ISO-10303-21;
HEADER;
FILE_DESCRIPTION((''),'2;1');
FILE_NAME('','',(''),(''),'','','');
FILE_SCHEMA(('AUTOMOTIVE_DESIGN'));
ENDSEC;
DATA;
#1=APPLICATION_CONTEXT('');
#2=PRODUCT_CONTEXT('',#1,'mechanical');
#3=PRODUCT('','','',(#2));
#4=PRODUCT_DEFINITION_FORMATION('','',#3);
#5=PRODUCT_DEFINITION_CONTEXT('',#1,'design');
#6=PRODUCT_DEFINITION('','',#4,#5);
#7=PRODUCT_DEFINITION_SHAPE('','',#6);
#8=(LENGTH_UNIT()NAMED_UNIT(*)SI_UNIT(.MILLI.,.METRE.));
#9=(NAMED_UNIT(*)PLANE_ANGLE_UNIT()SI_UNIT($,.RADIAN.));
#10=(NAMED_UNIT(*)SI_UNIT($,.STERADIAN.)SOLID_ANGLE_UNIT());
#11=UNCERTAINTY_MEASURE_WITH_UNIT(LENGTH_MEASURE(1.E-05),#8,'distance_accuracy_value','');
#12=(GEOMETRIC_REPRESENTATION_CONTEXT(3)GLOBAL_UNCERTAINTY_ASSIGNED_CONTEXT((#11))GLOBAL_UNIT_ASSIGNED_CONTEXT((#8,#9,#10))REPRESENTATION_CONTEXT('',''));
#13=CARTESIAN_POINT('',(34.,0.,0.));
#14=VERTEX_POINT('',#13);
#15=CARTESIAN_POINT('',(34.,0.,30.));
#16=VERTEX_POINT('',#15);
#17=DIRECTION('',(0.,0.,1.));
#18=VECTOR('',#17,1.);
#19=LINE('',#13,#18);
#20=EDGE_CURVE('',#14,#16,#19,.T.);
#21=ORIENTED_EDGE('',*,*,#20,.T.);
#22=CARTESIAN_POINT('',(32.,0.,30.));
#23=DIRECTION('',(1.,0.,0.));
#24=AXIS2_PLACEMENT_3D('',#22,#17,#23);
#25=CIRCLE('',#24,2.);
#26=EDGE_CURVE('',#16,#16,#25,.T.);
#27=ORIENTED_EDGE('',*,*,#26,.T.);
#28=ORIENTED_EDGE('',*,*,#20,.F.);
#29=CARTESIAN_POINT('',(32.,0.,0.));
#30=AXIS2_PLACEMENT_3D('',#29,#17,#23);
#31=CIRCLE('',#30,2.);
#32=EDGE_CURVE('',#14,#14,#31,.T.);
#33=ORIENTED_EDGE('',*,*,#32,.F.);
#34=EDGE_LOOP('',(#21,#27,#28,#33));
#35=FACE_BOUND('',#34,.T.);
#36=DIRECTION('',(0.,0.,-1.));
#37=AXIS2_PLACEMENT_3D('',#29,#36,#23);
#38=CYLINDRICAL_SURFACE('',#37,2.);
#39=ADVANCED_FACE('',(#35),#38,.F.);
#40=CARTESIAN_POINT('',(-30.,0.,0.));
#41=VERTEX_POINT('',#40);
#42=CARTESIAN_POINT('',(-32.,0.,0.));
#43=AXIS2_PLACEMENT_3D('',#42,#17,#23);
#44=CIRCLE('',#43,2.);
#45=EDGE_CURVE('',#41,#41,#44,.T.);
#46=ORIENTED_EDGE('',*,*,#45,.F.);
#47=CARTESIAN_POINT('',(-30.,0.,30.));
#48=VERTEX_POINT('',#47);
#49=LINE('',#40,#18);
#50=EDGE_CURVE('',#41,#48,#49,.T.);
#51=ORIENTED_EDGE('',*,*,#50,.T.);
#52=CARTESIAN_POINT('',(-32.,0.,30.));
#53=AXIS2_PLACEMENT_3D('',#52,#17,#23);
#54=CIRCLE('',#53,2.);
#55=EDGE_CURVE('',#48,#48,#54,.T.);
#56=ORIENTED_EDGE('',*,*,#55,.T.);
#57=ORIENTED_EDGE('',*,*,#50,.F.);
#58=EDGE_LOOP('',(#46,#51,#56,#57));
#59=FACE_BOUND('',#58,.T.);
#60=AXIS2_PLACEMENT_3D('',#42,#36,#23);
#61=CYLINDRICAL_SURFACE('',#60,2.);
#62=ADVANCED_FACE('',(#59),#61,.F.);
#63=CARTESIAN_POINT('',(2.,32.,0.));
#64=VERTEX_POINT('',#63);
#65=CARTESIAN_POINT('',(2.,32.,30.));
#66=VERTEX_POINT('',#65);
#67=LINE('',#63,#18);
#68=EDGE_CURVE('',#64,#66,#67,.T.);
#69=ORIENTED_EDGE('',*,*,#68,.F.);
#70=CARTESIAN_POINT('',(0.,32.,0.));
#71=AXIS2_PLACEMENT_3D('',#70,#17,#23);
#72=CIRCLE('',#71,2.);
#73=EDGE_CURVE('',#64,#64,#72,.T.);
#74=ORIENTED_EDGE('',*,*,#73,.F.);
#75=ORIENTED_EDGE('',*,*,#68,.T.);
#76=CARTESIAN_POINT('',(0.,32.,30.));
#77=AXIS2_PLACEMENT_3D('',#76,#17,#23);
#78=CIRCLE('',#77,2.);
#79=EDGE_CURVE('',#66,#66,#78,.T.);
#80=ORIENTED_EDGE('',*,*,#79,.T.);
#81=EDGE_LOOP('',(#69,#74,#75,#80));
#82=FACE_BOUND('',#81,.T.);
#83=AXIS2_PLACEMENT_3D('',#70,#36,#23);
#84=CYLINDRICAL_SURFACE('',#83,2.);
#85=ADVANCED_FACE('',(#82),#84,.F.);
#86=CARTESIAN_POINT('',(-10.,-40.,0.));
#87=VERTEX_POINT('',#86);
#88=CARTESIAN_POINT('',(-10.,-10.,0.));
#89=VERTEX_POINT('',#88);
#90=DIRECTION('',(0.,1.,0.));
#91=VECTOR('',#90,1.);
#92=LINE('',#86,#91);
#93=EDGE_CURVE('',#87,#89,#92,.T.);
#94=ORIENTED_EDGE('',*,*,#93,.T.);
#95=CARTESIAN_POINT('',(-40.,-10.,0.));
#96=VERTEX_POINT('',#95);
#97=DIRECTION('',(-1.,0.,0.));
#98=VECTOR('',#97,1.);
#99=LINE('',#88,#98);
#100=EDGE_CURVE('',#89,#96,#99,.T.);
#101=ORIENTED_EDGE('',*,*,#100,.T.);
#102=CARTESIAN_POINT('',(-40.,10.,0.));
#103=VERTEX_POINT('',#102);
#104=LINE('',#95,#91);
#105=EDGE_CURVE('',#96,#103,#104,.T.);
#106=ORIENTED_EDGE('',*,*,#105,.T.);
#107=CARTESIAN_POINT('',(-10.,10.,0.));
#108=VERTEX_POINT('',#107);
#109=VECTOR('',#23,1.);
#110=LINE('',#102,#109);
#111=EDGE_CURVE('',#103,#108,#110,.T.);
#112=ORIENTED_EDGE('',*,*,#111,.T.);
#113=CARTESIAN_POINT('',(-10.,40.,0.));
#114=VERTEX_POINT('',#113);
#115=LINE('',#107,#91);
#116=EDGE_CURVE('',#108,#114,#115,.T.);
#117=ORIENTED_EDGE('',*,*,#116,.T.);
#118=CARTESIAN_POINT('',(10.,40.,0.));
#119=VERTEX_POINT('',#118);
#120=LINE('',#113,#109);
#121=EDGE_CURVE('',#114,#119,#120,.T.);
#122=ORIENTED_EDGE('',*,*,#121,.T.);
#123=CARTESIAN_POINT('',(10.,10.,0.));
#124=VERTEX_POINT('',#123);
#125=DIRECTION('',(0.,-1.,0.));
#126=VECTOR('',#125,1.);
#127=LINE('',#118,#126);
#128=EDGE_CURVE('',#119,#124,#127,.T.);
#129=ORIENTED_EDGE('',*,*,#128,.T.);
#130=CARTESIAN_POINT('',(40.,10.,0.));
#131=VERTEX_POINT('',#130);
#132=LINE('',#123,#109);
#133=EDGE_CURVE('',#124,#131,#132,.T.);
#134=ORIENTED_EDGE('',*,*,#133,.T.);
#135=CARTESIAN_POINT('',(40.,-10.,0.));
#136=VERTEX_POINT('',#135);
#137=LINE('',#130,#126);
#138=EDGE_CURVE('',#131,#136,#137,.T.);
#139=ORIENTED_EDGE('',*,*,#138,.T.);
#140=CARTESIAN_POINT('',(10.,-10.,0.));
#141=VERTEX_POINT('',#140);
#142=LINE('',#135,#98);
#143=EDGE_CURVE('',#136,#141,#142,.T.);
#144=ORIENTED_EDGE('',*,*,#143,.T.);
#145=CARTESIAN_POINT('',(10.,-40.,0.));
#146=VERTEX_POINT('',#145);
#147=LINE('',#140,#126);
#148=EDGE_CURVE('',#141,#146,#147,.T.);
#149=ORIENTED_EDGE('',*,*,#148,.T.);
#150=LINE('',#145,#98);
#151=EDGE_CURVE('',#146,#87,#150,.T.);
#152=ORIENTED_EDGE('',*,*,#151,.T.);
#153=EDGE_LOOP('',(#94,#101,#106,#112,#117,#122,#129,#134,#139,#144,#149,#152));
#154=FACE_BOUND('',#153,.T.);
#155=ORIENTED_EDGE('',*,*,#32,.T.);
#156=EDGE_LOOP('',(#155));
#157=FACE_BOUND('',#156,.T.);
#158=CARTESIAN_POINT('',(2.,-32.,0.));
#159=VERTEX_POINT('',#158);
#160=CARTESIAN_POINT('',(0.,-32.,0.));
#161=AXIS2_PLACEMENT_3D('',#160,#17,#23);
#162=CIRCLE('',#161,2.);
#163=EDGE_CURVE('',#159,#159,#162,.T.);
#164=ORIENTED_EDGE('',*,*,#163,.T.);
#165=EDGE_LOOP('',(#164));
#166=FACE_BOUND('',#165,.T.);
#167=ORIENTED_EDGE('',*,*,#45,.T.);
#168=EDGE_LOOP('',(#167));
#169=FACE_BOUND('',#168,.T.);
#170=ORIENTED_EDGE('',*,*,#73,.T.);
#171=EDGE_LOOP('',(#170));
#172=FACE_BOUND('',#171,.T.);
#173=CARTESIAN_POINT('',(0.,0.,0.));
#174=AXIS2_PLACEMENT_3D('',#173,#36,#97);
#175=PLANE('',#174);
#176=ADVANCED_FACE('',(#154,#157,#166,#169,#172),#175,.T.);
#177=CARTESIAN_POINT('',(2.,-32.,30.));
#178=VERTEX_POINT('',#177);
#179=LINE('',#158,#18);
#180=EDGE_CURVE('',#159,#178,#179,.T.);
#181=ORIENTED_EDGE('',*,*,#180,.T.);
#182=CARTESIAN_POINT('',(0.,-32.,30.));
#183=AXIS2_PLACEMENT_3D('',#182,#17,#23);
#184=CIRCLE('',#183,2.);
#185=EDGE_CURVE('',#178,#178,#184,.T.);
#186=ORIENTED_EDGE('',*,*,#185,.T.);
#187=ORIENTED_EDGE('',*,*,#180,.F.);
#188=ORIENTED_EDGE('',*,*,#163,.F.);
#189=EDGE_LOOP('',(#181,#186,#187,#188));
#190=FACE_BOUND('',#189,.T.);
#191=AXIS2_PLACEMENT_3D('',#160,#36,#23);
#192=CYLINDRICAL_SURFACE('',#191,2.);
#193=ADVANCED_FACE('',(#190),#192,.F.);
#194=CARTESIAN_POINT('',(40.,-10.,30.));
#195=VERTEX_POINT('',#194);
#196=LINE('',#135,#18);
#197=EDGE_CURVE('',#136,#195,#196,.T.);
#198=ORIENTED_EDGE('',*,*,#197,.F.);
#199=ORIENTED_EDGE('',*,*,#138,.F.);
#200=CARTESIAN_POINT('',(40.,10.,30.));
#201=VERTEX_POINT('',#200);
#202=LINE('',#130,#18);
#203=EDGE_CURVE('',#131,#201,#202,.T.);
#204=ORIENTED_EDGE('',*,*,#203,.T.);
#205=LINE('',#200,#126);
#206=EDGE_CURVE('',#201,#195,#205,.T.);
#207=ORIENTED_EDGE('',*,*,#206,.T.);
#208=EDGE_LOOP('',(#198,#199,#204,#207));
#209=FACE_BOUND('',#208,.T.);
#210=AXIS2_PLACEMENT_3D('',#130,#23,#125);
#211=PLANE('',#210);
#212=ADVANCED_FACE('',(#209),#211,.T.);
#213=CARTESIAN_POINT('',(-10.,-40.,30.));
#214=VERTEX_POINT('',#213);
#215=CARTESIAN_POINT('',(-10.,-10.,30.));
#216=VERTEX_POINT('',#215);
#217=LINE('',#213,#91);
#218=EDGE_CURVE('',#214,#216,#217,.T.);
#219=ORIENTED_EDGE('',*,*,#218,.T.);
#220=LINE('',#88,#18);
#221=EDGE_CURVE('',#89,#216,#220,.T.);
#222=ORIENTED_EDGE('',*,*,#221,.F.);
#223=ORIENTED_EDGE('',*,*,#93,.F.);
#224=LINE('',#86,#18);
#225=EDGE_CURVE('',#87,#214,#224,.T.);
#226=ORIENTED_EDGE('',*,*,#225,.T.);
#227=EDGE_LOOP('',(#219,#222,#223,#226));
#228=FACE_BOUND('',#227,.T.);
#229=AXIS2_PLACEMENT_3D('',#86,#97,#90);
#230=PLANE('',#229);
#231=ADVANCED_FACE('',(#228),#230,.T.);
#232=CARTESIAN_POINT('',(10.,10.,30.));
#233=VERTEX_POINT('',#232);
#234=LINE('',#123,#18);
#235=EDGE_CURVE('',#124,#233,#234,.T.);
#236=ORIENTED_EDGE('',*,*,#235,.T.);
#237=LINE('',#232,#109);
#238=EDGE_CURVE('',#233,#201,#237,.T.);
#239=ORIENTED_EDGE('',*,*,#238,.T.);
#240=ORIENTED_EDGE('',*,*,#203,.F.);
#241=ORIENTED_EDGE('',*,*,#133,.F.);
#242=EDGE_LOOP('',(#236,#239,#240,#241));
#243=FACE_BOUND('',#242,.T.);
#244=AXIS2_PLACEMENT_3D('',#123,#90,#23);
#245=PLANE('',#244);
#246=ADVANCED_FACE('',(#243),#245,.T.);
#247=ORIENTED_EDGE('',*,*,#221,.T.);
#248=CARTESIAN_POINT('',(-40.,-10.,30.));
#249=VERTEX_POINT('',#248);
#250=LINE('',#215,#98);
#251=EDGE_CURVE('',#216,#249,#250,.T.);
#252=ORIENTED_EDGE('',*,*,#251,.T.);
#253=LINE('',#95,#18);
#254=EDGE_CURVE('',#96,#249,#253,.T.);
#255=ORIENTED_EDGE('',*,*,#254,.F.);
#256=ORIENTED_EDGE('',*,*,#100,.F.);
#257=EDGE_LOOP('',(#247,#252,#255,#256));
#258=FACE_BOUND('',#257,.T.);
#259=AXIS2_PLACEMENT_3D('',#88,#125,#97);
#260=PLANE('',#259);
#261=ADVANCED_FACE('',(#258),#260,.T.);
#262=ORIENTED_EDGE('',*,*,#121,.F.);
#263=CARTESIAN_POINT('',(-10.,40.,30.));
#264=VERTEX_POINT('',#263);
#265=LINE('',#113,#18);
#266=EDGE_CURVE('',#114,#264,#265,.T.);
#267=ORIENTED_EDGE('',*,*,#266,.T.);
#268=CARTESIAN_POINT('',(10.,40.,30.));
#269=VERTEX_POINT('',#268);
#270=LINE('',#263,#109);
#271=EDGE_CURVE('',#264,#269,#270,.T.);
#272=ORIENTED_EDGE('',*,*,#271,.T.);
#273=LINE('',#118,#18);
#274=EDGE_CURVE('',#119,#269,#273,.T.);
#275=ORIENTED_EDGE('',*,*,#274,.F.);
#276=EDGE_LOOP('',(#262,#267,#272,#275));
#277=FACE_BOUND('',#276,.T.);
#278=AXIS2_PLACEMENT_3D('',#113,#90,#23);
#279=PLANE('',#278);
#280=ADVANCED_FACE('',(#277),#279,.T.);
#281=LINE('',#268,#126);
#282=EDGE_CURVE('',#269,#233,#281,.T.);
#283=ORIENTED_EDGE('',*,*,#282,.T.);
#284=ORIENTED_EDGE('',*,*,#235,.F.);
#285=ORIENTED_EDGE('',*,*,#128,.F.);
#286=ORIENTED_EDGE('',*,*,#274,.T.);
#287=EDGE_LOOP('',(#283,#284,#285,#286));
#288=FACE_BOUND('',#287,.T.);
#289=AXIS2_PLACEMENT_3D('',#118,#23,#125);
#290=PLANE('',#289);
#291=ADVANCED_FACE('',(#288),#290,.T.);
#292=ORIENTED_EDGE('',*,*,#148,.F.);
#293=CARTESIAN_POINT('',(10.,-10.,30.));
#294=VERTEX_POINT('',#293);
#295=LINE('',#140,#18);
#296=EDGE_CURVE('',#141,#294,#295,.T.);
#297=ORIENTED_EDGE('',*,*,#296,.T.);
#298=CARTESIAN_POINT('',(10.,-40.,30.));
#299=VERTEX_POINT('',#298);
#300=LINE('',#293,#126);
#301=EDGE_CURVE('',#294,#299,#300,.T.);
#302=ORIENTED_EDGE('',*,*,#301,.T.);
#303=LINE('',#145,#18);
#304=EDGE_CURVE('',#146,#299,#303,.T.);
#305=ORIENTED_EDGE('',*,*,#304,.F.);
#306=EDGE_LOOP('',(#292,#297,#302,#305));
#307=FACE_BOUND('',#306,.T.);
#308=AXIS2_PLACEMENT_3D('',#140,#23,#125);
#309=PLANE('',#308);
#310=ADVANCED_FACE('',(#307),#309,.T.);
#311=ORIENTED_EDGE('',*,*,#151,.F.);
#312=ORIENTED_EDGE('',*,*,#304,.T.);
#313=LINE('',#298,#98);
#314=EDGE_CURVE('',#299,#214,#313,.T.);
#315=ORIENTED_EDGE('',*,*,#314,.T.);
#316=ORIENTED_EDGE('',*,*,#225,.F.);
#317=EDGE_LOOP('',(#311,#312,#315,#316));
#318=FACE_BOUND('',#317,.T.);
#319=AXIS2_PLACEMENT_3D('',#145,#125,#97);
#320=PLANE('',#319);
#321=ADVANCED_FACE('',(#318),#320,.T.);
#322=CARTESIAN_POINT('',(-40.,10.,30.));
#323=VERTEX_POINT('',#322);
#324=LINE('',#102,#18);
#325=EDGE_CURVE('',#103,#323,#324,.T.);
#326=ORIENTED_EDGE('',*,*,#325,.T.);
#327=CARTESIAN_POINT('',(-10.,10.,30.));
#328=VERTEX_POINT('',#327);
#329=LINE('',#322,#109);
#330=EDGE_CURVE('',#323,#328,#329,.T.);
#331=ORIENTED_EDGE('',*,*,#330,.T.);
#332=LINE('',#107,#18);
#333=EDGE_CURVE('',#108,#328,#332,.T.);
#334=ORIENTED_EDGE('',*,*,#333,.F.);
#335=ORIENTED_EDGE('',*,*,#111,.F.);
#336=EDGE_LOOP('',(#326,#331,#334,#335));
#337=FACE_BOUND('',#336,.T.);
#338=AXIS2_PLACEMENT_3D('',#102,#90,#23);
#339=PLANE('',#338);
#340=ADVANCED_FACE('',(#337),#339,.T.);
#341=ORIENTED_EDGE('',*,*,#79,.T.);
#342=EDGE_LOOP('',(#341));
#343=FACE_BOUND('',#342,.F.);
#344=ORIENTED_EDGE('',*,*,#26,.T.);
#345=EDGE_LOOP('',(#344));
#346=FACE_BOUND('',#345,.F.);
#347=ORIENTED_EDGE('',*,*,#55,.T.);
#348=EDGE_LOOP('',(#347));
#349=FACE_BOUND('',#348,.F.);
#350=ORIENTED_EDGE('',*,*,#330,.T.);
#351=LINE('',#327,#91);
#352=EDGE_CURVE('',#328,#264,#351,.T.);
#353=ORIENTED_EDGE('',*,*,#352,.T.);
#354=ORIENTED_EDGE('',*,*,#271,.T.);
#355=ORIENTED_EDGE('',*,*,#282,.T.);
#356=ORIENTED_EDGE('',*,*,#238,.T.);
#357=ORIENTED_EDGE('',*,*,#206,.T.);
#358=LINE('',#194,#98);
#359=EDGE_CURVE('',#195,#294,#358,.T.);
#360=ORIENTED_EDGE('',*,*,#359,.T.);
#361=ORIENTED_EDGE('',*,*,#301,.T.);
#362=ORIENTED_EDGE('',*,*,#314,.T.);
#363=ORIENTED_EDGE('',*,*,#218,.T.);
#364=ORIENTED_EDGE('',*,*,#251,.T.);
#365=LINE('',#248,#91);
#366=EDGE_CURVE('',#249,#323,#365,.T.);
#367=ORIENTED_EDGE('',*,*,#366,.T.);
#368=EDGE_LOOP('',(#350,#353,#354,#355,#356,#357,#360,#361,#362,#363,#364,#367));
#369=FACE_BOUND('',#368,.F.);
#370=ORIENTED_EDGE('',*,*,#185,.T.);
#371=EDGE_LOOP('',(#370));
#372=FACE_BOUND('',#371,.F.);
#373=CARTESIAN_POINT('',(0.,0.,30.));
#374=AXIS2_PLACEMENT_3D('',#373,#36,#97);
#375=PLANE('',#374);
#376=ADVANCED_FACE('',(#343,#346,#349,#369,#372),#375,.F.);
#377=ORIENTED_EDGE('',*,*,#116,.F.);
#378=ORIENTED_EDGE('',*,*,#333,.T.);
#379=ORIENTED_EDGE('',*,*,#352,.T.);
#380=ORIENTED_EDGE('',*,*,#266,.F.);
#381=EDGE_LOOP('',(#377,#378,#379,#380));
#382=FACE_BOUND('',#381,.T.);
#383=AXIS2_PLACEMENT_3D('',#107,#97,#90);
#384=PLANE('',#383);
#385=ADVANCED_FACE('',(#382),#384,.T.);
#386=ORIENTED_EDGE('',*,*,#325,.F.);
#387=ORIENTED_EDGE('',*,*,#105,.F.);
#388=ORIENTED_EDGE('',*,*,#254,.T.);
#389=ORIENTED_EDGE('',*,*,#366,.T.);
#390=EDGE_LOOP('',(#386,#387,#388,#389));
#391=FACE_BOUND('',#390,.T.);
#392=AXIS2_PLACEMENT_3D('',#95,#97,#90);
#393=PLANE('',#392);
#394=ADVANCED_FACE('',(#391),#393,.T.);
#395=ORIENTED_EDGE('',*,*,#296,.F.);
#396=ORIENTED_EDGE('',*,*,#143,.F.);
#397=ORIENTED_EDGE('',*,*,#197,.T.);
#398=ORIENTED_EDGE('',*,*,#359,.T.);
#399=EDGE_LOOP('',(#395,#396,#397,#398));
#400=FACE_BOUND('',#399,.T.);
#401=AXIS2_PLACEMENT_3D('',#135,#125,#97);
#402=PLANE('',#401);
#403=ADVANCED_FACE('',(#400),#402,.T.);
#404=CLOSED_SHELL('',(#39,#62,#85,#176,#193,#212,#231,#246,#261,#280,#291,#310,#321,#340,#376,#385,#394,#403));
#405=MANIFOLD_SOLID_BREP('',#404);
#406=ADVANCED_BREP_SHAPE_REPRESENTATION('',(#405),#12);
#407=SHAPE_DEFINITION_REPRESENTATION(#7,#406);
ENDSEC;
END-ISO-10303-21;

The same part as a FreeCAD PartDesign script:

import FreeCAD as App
import Part
import Sketcher
from FreeCAD import Vector

doc = App.newDocument("Part")
body = doc.addObject("PartDesign::Body", "Body")

sketch1 = doc.addObject("Sketcher::SketchObject", "Sketch")
body.addObject(sketch1)
sketch1.AttachmentSupport = (doc.XY_Plane, [""])
sketch1.MapMode = "FlatFace"
sketch1.addGeometry([
    Part.LineSegment(Vector(-10, 40, 0), Vector(-10, 10, 0)),
    Part.LineSegment(Vector(-10, 10, 0), Vector(-40, 10, 0)),
    Part.LineSegment(Vector(-40, 10, 0), Vector(-40, -10, 0)),
    Part.LineSegment(Vector(-40, -10, 0), Vector(-10, -10, 0)),
    Part.LineSegment(Vector(-10, -10, 0), Vector(-10, -40, 0)),
    Part.LineSegment(Vector(-10, -40, 0), Vector(10, -40, 0)),
    Part.LineSegment(Vector(10, -40, 0), Vector(10, -10, 0)),
    Part.LineSegment(Vector(10, -10, 0), Vector(40, -10, 0)),
    Part.LineSegment(Vector(40, -10, 0), Vector(40, 10, 0)),
    Part.LineSegment(Vector(40, 10, 0), Vector(10, 10, 0)),
    Part.LineSegment(Vector(10, 10, 0), Vector(10, 40, 0)),
    Part.LineSegment(Vector(10, 40, 0), Vector(-10, 40, 0)),
    Part.Circle(Vector(0, -32, 0), Vector(0, 0, 1), 2),
    Part.Circle(Vector(32, 0, 0), Vector(0, 0, 1), 2),
    Part.Circle(Vector(-32, 0, 0), Vector(0, 0, 1), 2),
    Part.Circle(Vector(0, 32, 0), Vector(0, 0, 1), 2),
], False)
sketch1.addConstraint([
    Sketcher.Constraint("Coincident", 0, 2, 1, 1),
    Sketcher.Constraint("Coincident", 1, 2, 2, 1),
    Sketcher.Constraint("Coincident", 2, 2, 3, 1),
    Sketcher.Constraint("Coincident", 3, 2, 4, 1),
    Sketcher.Constraint("Coincident", 4, 2, 5, 1),
    Sketcher.Constraint("Coincident", 5, 2, 6, 1),
    Sketcher.Constraint("Coincident", 6, 2, 7, 1),
    Sketcher.Constraint("Coincident", 7, 2, 8, 1),
    Sketcher.Constraint("Coincident", 8, 2, 9, 1),
    Sketcher.Constraint("Coincident", 9, 2, 10, 1),
    Sketcher.Constraint("Coincident", 10, 2, 11, 1),
    Sketcher.Constraint("Coincident", 11, 2, 0, 1),
    Sketcher.Constraint("Vertical", 0),
    Sketcher.Constraint("Horizontal", 1),
    Sketcher.Constraint("Vertical", 2),
    Sketcher.Constraint("Horizontal", 3),
    Sketcher.Constraint("Vertical", 4),
    Sketcher.Constraint("Horizontal", 5),
    Sketcher.Constraint("Vertical", 6),
    Sketcher.Constraint("Horizontal", 7),
    Sketcher.Constraint("Vertical", 8),
    Sketcher.Constraint("Horizontal", 9),
    Sketcher.Constraint("Vertical", 10),
    Sketcher.Constraint("Horizontal", 11),
    Sketcher.Constraint("Equal", 12, 13),
    Sketcher.Constraint("Equal", 13, 14),
    Sketcher.Constraint("Equal", 14, 15),
    Sketcher.Constraint("Symmetric", 13, 3, 14, 3, -1, 1),
    Sketcher.Constraint("Symmetric", 12, 3, 15, 3, -1, 1),
    Sketcher.Constraint("Symmetric", 0, 2, 6, 2, -1, 1),
    Sketcher.Constraint("Symmetric", 2, 2, 8, 2, -1, 1),
    Sketcher.Constraint("Symmetric", 4, 2, 10, 2, -1, 1),
    Sketcher.Constraint("Symmetric", 3, 2, 6, 2, -2),
    Sketcher.Constraint("PointOnObject", 12, 3, -2),
    Sketcher.Constraint("PointOnObject", 13, 3, -1),
    Sketcher.Constraint("Equal", 9, 0),
    Sketcher.Constraint("Equal", 11, 2),
    Sketcher.Constraint("Diameter", 12, 4.0),
    Sketcher.Constraint("DistanceX", 1, 2, 1, 1, 30.0),
    Sketcher.Constraint("DistanceX", 5, 1, 5, 2, 20.0),
    Sketcher.Constraint("DistanceY", 12, 3, -1, 1, 32.0),
    Sketcher.Constraint("DistanceX", -1, 1, 13, 3, 32.0),
])
pad1 = doc.addObject("PartDesign::Pad", "Pad")
body.addObject(pad1)
pad1.Profile = sketch1
pad1.Length = 30

doc.recompute()
